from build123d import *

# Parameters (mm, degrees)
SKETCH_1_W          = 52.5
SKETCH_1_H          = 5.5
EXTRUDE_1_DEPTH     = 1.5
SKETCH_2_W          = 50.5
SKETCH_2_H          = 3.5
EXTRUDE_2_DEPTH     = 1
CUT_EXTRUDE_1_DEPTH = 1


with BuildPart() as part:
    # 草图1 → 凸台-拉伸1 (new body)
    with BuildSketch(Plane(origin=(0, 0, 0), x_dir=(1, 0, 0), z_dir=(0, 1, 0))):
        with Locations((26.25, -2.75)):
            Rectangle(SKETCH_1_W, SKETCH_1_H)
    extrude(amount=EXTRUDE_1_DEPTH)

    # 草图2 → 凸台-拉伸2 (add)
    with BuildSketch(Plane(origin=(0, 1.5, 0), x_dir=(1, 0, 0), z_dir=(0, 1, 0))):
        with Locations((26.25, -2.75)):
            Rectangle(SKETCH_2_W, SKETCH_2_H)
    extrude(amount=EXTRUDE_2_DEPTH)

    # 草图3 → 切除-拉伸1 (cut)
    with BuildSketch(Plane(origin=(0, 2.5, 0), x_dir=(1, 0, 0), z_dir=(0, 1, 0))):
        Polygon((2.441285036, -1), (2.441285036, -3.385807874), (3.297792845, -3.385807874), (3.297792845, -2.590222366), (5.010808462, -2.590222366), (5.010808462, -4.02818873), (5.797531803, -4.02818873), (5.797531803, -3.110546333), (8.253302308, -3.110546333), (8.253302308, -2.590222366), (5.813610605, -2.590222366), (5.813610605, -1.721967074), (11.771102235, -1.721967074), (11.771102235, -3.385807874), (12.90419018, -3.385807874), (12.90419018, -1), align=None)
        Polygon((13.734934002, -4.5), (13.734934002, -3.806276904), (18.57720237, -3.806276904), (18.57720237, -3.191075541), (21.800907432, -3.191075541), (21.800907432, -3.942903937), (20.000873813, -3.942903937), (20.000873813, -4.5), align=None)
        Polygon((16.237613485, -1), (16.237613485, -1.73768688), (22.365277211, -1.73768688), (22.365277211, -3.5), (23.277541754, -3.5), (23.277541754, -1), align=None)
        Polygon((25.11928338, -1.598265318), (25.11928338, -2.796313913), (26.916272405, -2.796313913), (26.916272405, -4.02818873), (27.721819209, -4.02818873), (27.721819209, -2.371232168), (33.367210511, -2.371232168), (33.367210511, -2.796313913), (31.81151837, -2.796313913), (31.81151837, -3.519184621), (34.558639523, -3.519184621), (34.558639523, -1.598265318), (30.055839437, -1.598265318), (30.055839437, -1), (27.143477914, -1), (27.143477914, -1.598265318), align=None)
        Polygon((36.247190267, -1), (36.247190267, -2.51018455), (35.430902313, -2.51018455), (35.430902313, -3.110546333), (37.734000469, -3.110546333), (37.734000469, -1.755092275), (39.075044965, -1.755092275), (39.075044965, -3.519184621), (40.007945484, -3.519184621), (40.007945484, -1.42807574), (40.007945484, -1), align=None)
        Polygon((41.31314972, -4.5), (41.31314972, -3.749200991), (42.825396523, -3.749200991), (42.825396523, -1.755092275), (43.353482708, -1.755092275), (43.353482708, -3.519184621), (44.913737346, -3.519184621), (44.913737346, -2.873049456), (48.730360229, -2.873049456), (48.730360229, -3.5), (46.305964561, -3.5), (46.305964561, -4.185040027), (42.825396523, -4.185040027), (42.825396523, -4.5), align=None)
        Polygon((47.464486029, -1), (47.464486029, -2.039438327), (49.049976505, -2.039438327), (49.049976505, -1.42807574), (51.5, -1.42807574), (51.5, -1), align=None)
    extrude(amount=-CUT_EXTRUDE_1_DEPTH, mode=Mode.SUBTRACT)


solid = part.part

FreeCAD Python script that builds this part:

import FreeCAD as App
import Part
import Sketcher

V = App.Vector


def add_polygon(sketch, points):
    """Adds a closed chain of lines whose ends are joined by coincident constraints."""
    first, n = sketch.GeometryCount, len(points)
    for a, b in zip(points, points[1:] + points[:1]):
        sketch.addGeometry(Part.LineSegment(App.Vector(*a, 0), App.Vector(*b, 0)), False)
    for i in range(n):
        sketch.addConstraint(Sketcher.Constraint("Coincident", first + i, 2, first + (i + 1) % n, 1))

doc = App.newDocument("Part")
body = doc.addObject("PartDesign::Body", "Body")

sketch1 = body.newObject("Sketcher::SketchObject", "Sketch")
sketch1.AttachmentSupport = (doc.getObject("XZ_Plane"), [""])
sketch1.MapMode = "FlatFace"
add_polygon(sketch1, [(0, 0), (0, 6), (52, 6), (52, 0)])
sketch1.addConstraint([
    Sketcher.Constraint("Vertical", 0),
    Sketcher.Constraint("Horizontal", 1),
    Sketcher.Constraint("Vertical", 2),
    Sketcher.Constraint("Horizontal", 3),
    Sketcher.Constraint("Coincident", 3, 2, -1, 1),
    Sketcher.Constraint("DistanceX", 1, 1, 1, 2, 52.5),
    Sketcher.Constraint("DistanceY", 0, 1, 0, 2, 5.5),
])
pad1 = body.newObject("PartDesign::Pad", "Pad")
pad1.Profile = sketch1
pad1.Length = 1.5
pad1.Reversed = True

sketch2 = body.newObject("Sketcher::SketchObject", "Sketch001")
sketch2.AttachmentSupport = (doc.getObject("XZ_Plane"), [""])
sketch2.MapMode = "FlatFace"
sketch2.AttachmentOffset = App.Placement(V(0, 0, -1.5), App.Rotation())
add_polygon(sketch2, [(1, 1), (1, 4.5), (51.5, 4.5), (51.5, 1)])
sketch2.addConstraint([
    Sketcher.Constraint("Vertical", 0),
    Sketcher.Constraint("Horizontal", 1),
    Sketcher.Constraint("Vertical", 2),
    Sketcher.Constraint("Horizontal", 3),
    Sketcher.Constraint("DistanceX", 1, 1, 1, 2, 50.5),
    Sketcher.Constraint("DistanceY", 0, 1, 0, 2, 3.5),
    Sketcher.Constraint("DistanceX", -1, 1, 0, 2, 1.0),
    Sketcher.Constraint("DistanceY", -1, 1, 2, 2, 1.0),
])
pad2 = body.newObject("PartDesign::Pad", "Pad001")
pad2.Profile = sketch2
pad2.Length = 1
pad2.Reversed = True

sketch3 = body.newObject("Sketcher::SketchObject", "Sketch002")
sketch3.AttachmentSupport = (doc.getObject("XZ_Plane"), [""])
sketch3.MapMode = "FlatFace"
sketch3.AttachmentOffset = App.Placement(V(0, 0, -2.5), App.Rotation())
add_polygon(sketch3, [(2.44, 1), (2.44, 3.39), (3.3, 3.39), (3.3, 2.59), (5.01, 2.59), (5.01, 4.03), (5.8, 4.03), (5.8, 3.11), (8.25, 3.11), (8.25, 2.59), (5.81, 2.59), (5.81, 1.72), (11.77, 1.72), (11.77, 3.39), (12.9, 3.39), (12.9, 1)])
add_polygon(sketch3, [(13.73, 3.81), (13.73, 4.5), (20, 4.5), (20, 3.94), (21.8, 3.94), (21.8, 3.19), (18.58, 3.19), (18.58, 3.81)])
add_polygon(sketch3, [(16.24, 1), (16.24, 1.74), (22.37, 1.74), (22.37, 3.5), (23.28, 3.5), (23.28, 1)])
add_polygon(sketch3, [(25.12, 1.6), (25.12, 2.8), (26.92, 2.8), (26.92, 4.03), (27.72, 4.03), (27.72, 2.37), (33.37, 2.37), (33.37, 2.8), (31.81, 2.8), (31.81, 3.52), (34.56, 3.52), (34.56, 1.6), (30.06, 1.6), (30.06, 1), (27.14, 1), (27.14, 1.6)])
add_polygon(sketch3, [(36.25, 1), (36.25, 2.51), (35.43, 2.51), (35.43, 3.11), (37.73, 3.11), (37.73, 1.76), (39.08, 1.76), (39.08, 3.52), (40.01, 3.52), (40.01, 1)])
add_polygon(sketch3, [(41.31, 3.75), (41.31, 4.5), (42.83, 4.5), (42.83, 4.19), (46.31, 4.19), (46.31, 3.5), (48.73, 3.5), (48.73, 2.87), (44.91, 2.87), (44.91, 3.52), (43.35, 3.52), (43.35, 1.76), (42.83, 1.76), (42.83, 3.75)])
add_polygon(sketch3, [(47.46, 1), (47.46, 2.04), (49.05, 2.04), (49.05, 1.43), (51.5, 1.43), (51.5, 1)])
sketch3.addConstraint([
    Sketcher.Constraint("Vertical", 0),
    Sketcher.Constraint("Horizontal", 1),
    Sketcher.Constraint("Vertical", 2),
    Sketcher.Constraint("Horizontal", 3),
    Sketcher.Constraint("Vertical", 4),
    Sketcher.Constraint("Horizontal", 5),
    Sketcher.Constraint("Vertical", 6),
    Sketcher.Constraint("Horizontal", 7),
    Sketcher.Constraint("Vertical", 8),
    Sketcher.Constraint("Horizontal", 9),
    Sketcher.Constraint("Vertical", 10),
    Sketcher.Constraint("Horizontal", 11),
    Sketcher.Constraint("Vertical", 12),
    Sketcher.Constraint("Horizontal", 13),
    Sketcher.Constraint("Vertical", 14),
    Sketcher.Constraint("Horizontal", 15),
    Sketcher.Constraint("Vertical", 16),
    Sketcher.Constraint("Horizontal", 17),
    Sketcher.Constraint("Vertical", 18),
    Sketcher.Constraint("Horizontal", 19),
    Sketcher.Constraint("Vertical", 20),
    Sketcher.Constraint("Horizontal", 21),
    Sketcher.Constraint("Vertical", 22),
    Sketcher.Constraint("Horizontal", 23),
    Sketcher.Constraint("Vertical", 24),
    Sketcher.Constraint("Horizontal", 25),
    Sketcher.Constraint("Vertical", 26),
    Sketcher.Constraint("Horizontal", 27),
    Sketcher.Constraint("Vertical", 28),
    Sketcher.Constraint("Horizontal", 29),
    Sketcher.Constraint("Vertical", 30),
    Sketcher.Constraint("Horizontal", 31),
    Sketcher.Constraint("Vertical", 32),
    Sketcher.Constraint("Horizontal", 33),
    Sketcher.Constraint("Vertical", 34),
    Sketcher.Constraint("Horizontal", 35),
    Sketcher.Constraint("Vertical", 36),
    Sketcher.Constraint("Horizontal", 37),
    Sketcher.Constraint("Vertical", 38),
    Sketcher.Constraint("Horizontal", 39),
    Sketcher.Constraint("Vertical", 40),
    Sketcher.Constraint("Horizontal", 41),
    Sketcher.Constraint("Vertical", 42),
    Sketcher.Constraint("Horizontal", 43),
    Sketcher.Constraint("Vertical", 44),
    Sketcher.Constraint("Horizontal", 45),
    Sketcher.Constraint("Vertical", 46),
    Sketcher.Constraint("Horizontal", 47),
    Sketcher.Constraint("Vertical", 48),
    Sketcher.Constraint("Horizontal", 49),
    Sketcher.Constraint("Vertical", 50),
    Sketcher.Constraint("Horizontal", 51),
    Sketcher.Constraint("Vertical", 52),
    Sketcher.Constraint("Horizontal", 53),
    Sketcher.Constraint("Vertical", 54),
    Sketcher.Constraint("Horizontal", 55),
    Sketcher.Constraint("Vertical", 56),
    Sketcher.Constraint("Horizontal", 57),
    Sketcher.Constraint("Vertical", 58),
    Sketcher.Constraint("Horizontal", 59),
    Sketcher.Constraint("Vertical", 60),
    Sketcher.Constraint("Horizontal", 61),
    Sketcher.Constraint("Vertical", 62),
    Sketcher.Constraint("Horizontal", 63),
    Sketcher.Constraint("Vertical", 64),
    Sketcher.Constraint("Horizontal", 65),
    Sketcher.Constraint("Vertical", 66),
    Sketcher.Constraint("Horizontal", 67),
    Sketcher.Constraint("Vertical", 68),
    Sketcher.Constraint("Horizontal", 69),
    Sketcher.Constraint("Vertical", 70),
    Sketcher.Constraint("Horizontal", 71),
    Sketcher.Constraint("Vertical", 72),
    Sketcher.Constraint("Horizontal", 73),
    Sketcher.Constraint("Vertical", 74),
    Sketcher.Constraint("Horizontal", 75),
    Sketcher.Constraint("Horizontal", 3, 2, 8, 2),
    Sketcher.Constraint("Horizontal", 1, 2, 12, 2),
    Sketcher.Constraint("Horizontal", 15, 2, 28, 2),
    Sketcher.Constraint("Horizontal", 5, 2, 32, 2),
    Sketcher.Constraint("Horizontal", 31, 2, 36, 2),
    Sketcher.Constraint("Horizontal", 29, 2, 42, 2),
    Sketcher.Constraint("Horizontal", 41, 2, 44, 2),
    Sketcher.Constraint("Horizontal", 7, 2, 48, 2),
    Sketcher.Constraint("Horizontal", 39, 2, 52, 2),
    Sketcher.Constraint("Horizontal", 43, 2, 54, 2),
    Sketcher.Constraint("Horizontal", 17, 2, 56, 2),
    Sketcher.Constraint("Horizontal", 27, 2, 60, 2),
    Sketcher.Constraint("Horizontal", 53, 2, 64, 2),
    Sketcher.Constraint("Horizontal", 51, 2, 66, 2),
    Sketcher.Constraint("Horizontal", 55, 2, 74, 2),
    Sketcher.Constraint("Vertical", 58, 2, 67, 2),
    Sketcher.Constraint("DistanceY", 28, 2, 28, 1, 2.5),
    Sketcher.Constraint("DistanceY", -1, 1, 14, 2, 1.0),
    Sketcher.Constraint("DistanceY", -1, 1, 16, 2, 4.5),
    Sketcher.Constraint("DistanceX", -1, 1, 73, 2, 51.5),
    Sketcher.Constraint("DistanceX", 41, 2, 41, 1, 4.5028),
    Sketcher.Constraint("DistanceX", 49, 1, 49, 2, 2.303098),
    Sketcher.Constraint("DistanceX", 53, 1, 53, 2, 0.932901),
    Sketcher.Constraint("DistanceY", 22, 1, 22, 2, 0.615201),
    Sketcher.Constraint("DistanceY", 56, 1, 56, 2, 0.750799),
    Sketcher.Constraint("DistanceX", -1, 1, 49, 2, 37.734),
    Sketcher.Constraint("DistanceX", 7, 1, 7, 2, 2.455771),
    Sketcher.Constraint("DistanceX", 9, 2, 9, 1, 2.439692),
    Sketcher.Constraint("DistanceX", 11, 1, 11, 2, 5.957492),
    Sketcher.Constraint("DistanceX", 17, 1, 17, 2, 6.26594),
    Sketcher.Constraint("DistanceX", 23, 2, 23, 1, 4.842268),
    Sketcher.Constraint("DistanceX", 29, 2, 29, 1, 7.039928),
    Sketcher.Constraint("DistanceX", 31, 1, 31, 2, 1.796989),
    Sketcher.Constraint("DistanceX", 35, 1, 35, 2, 5.645391),
    Sketcher.Constraint("DistanceX", 39, 1, 39, 2, 2.747121),
    Sketcher.Constraint("DistanceX", 43, 2, 43, 1, 2.912362),
    Sketcher.Constraint("DistanceX", 59, 1, 59, 2, 3.480568),
    Sketcher.Constraint("DistanceX", 71, 1, 71, 2, 1.58549),
    Sketcher.Constraint("DistanceY", 12, 1, 12, 2, 1.663841),
    Sketcher.Constraint("DistanceY", 20, 2, 20, 1, 0.751828),
    Sketcher.Constraint("DistanceY", 30, 1, 30, 2, 1.198049),
    Sketcher.Constraint("DistanceY", 36, 1, 36, 2, 0.425082),
    Sketcher.Constraint("DistanceY", 38, 1, 38, 2, 0.722871),
    Sketcher.Constraint("DistanceY", 48, 1, 48, 2, 0.600362),
    Sketcher.Constraint("DistanceY", 58, 2, 58, 1, 0.31496),
    Sketcher.Constraint("DistanceY", 62, 2, 62, 1, 0.626951),
    Sketcher.Constraint("DistanceY", 68, 1, 68, 2, 1.994109),
    Sketcher.Constraint("DistanceY", 70, 1, 70, 2, 1.039438),
    Sketcher.Constraint("DistanceX", 1, 1, 1, 2, 0.856508),
    Sketcher.Constraint("DistanceX", 3, 1, 3, 2, 1.713016),
    Sketcher.Constraint("DistanceX", 5, 1, 5, 2, 0.786723),
    Sketcher.Constraint("DistanceX", 13, 1, 13, 2, 1.133088),
    Sketcher.Constraint("DistanceX", 19, 1, 19, 2, 1.800034),
    Sketcher.Constraint("DistanceX", 25, 1, 25, 2, 6.127664),
    Sketcher.Constraint("DistanceX", 33, 1, 33, 2, 0.805547),
    Sketcher.Constraint("DistanceX", 37, 2, 37, 1, 1.555692),
    Sketcher.Constraint("DistanceX", 47, 2, 47, 1, 0.816288),
    Sketcher.Constraint("DistanceX", 51, 1, 51, 2, 1.341044),
    Sketcher.Constraint("DistanceX", 57, 1, 57, 2, 1.512247),
    Sketcher.Constraint("DistanceX", 61, 1, 61, 2, 2.424396),
    Sketcher.Constraint("DistanceX", 63, 2, 63, 1, 3.816623),
    Sketcher.Constraint("DistanceX", 65, 2, 65, 1, 1.560255),
    Sketcher.Constraint("DistanceX", 73, 1, 73, 2, 2.450023),
    Sketcher.Constraint("DistanceY", 0, 1, 0, 2, 2.385808),
    Sketcher.Constraint("DistanceY", 2, 2, 2, 1, 0.795586),
    Sketcher.Constraint("DistanceY", 4, 1, 4, 2, 1.437966),
    Sketcher.Constraint("DistanceY", 6, 2, 6, 1, 0.917642),
    Sketcher.Constraint("DistanceY", 16, 1, 16, 2, 0.693723),
    Sketcher.Constraint("DistanceY", 24, 1, 24, 2, 0.737687),
    Sketcher.Constraint("DistanceY", 32, 1, 32, 2, 1.231875),
    Sketcher.Constraint("DistanceY", 72, 2, 72, 1, 0.611363),
    Sketcher.Constraint("DistanceX", -1, 1, 3, 2, 5.010808),
    Sketcher.Constraint("DistanceX", -1, 1, 27, 2, 23.277542),
    Sketcher.Constraint("DistanceX", -1, 1, 33, 2, 27.721819),
    Sketcher.Constraint("DistanceX", -1, 1, 56, 2, 41.31315),
    Sketcher.Constraint("DistanceX", -1, 1, 16, 2, 13.734934),
])
pocket1 = body.newObject("PartDesign::Pocket", "Pocket")
pocket1.Profile = sketch3
pocket1.Length = 1
pocket1.Reversed = True

doc.recompute()
